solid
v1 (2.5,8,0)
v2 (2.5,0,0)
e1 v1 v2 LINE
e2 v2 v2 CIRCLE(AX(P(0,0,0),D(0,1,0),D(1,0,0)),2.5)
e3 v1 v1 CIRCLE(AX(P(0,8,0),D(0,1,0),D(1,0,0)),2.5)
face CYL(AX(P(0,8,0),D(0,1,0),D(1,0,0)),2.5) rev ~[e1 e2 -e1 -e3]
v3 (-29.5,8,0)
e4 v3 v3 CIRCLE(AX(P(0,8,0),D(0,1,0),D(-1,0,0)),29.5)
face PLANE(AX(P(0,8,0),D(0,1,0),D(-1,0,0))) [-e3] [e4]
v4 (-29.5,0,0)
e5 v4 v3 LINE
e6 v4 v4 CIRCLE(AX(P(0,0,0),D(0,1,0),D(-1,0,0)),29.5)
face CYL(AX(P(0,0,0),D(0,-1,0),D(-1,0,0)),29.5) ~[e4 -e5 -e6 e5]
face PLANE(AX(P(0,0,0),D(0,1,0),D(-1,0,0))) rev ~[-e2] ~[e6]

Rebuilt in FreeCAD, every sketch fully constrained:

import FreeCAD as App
import Part
import Sketcher

V = App.Vector
Q = App.Units.Quantity

doc = App.newDocument("Part")
body = doc.addObject("PartDesign::Body", "Body")

sketch1 = body.newObject("Sketcher::SketchObject", "Sketch")
sketch1.AttachmentSupport = (doc.getObject("XZ_Plane"), [""])
sketch1.MapMode = "FlatFace"
sketch1.addGeometry(Part.Circle(V(0, 0, 0), V(0, 0, 1), 30), False)
sketch1.addConstraint(Sketcher.Constraint("Coincident", 0, 3, -1, 1))
sketch1.addConstraint(Sketcher.Constraint("Diameter", 0, Q("59 mm")))
pad1 = body.newObject("PartDesign::Pad", "Pad")
pad1.Profile = sketch1
pad1.Length = 8
pad1.Reversed = True

sketch2 = body.newObject("Sketcher::SketchObject", "Sketch001")
sketch2.AttachmentSupport = (doc.getObject("XZ_Plane"), [""])
sketch2.MapMode = "FlatFace"
sketch2.AttachmentOffset = App.Placement(V(0, 0, -8), App.Rotation())
sketch2.addGeometry(Part.Circle(V(0, 0, 0), V(0, 0, 1), 2.5), False)
sketch2.addConstraint(Sketcher.Constraint("Coincident", 0, 3, -1, 1))
sketch2.addConstraint(Sketcher.Constraint("Diameter", 0, Q("5 mm")))
pocket1 = body.newObject("PartDesign::Pocket", "Pocket")
pocket1.Profile = sketch2
pocket1.Length = 10
pocket1.Reversed = True

doc.recompute()
